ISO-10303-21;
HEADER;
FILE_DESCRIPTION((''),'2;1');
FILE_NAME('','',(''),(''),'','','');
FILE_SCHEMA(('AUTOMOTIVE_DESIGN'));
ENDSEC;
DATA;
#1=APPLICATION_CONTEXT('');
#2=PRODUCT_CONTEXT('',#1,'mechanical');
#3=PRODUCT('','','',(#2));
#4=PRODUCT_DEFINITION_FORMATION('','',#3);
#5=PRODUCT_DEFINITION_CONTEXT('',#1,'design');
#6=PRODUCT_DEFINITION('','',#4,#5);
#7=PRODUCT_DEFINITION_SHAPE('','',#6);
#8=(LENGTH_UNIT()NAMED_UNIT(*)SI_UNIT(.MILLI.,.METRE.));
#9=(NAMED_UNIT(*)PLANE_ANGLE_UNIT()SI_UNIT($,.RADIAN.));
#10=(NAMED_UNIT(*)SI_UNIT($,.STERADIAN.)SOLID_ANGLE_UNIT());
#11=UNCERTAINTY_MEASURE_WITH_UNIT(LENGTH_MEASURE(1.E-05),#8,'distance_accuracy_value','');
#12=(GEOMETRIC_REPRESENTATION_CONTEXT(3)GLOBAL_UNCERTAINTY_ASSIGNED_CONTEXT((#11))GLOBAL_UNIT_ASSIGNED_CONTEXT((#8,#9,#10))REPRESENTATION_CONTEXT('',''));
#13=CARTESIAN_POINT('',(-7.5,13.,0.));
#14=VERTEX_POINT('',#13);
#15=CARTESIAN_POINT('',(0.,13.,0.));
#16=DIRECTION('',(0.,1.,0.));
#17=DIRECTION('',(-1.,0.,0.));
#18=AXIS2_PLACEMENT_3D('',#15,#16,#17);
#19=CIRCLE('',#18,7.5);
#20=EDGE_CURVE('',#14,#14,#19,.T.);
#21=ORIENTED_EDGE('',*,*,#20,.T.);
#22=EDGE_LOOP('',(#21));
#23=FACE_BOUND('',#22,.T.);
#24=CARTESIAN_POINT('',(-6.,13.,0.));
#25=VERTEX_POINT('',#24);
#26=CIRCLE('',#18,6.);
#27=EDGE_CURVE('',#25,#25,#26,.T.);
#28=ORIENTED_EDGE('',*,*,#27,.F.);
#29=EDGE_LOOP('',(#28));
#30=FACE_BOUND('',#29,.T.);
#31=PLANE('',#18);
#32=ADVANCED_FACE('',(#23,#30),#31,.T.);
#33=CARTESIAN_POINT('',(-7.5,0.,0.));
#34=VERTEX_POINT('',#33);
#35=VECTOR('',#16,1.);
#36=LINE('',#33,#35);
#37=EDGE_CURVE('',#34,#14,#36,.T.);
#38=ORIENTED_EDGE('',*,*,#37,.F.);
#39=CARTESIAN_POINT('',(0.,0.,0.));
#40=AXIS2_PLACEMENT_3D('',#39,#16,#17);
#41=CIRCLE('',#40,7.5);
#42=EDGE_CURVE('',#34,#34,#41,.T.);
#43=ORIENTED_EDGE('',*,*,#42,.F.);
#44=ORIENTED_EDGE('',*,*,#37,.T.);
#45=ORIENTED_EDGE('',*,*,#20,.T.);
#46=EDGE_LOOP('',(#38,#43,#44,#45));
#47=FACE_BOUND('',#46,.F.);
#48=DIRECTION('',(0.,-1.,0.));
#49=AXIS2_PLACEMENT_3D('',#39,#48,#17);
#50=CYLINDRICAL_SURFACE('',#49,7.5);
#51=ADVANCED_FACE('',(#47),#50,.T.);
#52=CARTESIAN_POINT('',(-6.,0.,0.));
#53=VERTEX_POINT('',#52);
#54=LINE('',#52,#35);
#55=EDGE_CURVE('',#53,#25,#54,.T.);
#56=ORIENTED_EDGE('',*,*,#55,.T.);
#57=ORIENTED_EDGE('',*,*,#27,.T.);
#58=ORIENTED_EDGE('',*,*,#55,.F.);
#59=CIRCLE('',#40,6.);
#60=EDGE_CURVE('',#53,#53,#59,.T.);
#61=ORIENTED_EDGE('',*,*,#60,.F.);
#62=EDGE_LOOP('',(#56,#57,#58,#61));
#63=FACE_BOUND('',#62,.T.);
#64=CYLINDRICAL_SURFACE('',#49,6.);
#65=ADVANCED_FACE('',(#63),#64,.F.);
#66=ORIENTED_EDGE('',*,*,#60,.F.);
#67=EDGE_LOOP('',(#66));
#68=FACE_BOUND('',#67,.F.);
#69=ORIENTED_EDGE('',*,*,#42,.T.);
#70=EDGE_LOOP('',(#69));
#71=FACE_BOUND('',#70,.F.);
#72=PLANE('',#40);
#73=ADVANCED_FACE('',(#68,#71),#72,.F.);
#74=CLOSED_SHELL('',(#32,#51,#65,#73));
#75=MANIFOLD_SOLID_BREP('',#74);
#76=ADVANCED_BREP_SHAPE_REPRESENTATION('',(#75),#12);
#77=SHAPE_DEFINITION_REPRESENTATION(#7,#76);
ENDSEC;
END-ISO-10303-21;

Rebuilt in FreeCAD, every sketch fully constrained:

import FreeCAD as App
import Part
import Sketcher
Q = App.Units.Quantity

doc = App.newDocument("Part")
params = doc.addObject("Spreadsheet::Sheet", "Params")
for row, (alias, value) in enumerate([
    ("sketch1_diameter", "15 mm"),
    ("sketch1_diameter2", "12 mm"),
    ("pad1_length", "13 mm"),
], start=1):
    params.set(f"A{row}", alias)
    params.set(f"B{row}", "=" + value)
    params.setAlias(f"B{row}", alias)

body = doc.addObject("PartDesign::Body", "Body")

sketch1 = body.newObject("Sketcher::SketchObject", "Sketch")
sketch1.AttachmentSupport = (doc.getObject("XZ_Plane"), [""])
sketch1.MapMode = "FlatFace"
sketch1.addGeometry(Part.Circle(App.Vector(0, 0, 0), App.Vector(0, 0, 1), 7.5), False)
sketch1.addGeometry(Part.Circle(App.Vector(0, 0, 0), App.Vector(0, 0, 1), 6), False)
sketch1.addConstraint(Sketcher.Constraint("Coincident", 0, 3, -1, 1))
sketch1.addConstraint(Sketcher.Constraint("Coincident", 1, 3, -1, 1))
sketch1.addConstraint(Sketcher.Constraint("Diameter", 0, Q("15 mm")))
sketch1.addConstraint(Sketcher.Constraint("Diameter", 1, Q("12 mm")))
sketch1.setExpression("Constraints[2]", "Params.sketch1_diameter")
sketch1.setExpression("Constraints[3]", "Params.sketch1_diameter2")
pad1 = body.newObject("PartDesign::Pad", "Pad")
pad1.Profile = sketch1
pad1.setExpression("Length", "Params.pad1_length")
pad1.Reversed = True

doc.recompute()
